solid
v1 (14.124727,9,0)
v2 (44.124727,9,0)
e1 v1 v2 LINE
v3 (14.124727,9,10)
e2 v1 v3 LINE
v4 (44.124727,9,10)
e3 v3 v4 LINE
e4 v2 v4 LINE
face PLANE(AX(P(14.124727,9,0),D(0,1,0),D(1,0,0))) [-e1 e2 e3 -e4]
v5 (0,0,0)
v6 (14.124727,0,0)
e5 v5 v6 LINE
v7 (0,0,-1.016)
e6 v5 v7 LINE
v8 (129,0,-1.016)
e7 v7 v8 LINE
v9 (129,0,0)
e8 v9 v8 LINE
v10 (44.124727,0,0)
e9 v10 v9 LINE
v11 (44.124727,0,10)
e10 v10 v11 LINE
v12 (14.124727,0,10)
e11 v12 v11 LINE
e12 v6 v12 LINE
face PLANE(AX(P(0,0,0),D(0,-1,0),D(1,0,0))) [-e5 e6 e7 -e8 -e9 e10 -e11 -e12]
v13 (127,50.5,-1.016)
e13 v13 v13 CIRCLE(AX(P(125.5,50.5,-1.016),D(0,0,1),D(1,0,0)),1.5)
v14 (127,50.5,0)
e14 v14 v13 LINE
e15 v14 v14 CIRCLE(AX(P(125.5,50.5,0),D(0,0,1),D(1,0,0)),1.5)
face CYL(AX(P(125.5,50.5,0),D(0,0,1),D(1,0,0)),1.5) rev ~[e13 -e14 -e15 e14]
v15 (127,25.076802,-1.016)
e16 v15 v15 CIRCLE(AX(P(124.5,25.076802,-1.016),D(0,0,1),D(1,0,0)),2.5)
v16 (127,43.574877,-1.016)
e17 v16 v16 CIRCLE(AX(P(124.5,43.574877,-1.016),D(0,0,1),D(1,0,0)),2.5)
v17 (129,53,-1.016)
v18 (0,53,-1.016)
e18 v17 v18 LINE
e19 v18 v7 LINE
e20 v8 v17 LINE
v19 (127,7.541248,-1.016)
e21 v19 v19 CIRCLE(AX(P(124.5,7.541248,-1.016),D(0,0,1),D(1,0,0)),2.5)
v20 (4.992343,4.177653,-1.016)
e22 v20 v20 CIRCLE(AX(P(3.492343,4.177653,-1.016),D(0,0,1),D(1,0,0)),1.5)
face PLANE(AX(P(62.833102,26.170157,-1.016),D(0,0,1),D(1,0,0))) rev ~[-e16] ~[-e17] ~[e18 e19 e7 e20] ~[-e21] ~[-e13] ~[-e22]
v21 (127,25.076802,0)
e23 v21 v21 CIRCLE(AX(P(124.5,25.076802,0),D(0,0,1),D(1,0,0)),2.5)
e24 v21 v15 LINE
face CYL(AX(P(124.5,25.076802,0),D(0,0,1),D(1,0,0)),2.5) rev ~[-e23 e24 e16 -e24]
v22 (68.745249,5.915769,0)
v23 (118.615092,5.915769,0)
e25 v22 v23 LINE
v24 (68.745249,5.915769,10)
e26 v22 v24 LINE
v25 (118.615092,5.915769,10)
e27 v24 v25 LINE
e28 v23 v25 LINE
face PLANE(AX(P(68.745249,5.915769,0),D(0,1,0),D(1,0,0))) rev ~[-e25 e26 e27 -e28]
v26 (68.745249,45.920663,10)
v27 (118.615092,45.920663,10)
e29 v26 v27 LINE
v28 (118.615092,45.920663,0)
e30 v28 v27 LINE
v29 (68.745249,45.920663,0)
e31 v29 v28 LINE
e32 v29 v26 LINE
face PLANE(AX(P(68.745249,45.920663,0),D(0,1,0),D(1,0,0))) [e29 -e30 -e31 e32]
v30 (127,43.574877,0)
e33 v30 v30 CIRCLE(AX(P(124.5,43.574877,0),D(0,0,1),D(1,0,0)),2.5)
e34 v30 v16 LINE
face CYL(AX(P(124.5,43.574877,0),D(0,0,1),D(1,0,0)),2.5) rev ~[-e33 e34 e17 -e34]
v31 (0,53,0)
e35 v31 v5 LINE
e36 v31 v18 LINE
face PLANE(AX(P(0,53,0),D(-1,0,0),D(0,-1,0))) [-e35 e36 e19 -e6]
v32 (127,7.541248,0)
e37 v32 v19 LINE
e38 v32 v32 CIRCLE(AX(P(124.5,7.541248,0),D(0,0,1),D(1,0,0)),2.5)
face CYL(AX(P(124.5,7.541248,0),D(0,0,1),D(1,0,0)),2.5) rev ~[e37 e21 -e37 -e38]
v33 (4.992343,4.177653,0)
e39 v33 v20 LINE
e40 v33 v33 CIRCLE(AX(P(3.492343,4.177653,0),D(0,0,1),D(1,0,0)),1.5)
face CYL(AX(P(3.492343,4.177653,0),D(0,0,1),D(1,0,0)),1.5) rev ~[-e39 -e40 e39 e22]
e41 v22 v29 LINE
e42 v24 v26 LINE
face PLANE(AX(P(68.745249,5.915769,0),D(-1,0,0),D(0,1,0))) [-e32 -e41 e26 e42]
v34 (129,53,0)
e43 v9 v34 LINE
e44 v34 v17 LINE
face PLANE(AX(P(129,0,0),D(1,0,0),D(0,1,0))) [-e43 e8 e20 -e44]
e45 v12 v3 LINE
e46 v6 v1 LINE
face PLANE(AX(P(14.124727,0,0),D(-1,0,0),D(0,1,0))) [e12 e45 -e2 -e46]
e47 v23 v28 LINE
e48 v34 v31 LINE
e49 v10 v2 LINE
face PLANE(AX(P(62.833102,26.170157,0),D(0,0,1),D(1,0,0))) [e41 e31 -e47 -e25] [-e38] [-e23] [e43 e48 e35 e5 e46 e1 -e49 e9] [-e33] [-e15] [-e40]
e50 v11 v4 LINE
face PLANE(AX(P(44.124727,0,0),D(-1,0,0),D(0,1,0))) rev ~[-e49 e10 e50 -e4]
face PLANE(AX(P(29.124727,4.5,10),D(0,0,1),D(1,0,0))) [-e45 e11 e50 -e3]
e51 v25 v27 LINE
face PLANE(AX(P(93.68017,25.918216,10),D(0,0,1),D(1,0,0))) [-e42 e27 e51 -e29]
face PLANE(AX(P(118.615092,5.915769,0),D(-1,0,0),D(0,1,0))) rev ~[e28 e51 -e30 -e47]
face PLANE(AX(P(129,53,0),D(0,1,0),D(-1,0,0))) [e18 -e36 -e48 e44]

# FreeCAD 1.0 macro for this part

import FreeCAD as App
import Part
import Sketcher
from FreeCAD import Vector

doc = App.newDocument("Part")
params = doc.addObject("Spreadsheet::Sheet", "Params")
for row, (alias, value) in enumerate([
    ("sketch1_diameter", "3 mm"),
    ("sketch1_diameter2", "5 mm"),
    ("sketch1_width", "129 mm"),
    ("sketch1_height", "53 mm"),
    ("pad1_length", "1.016 mm"),
    ("sketch2_width", "30 mm"),
    ("sketch2_height", "9 mm"),
    ("pad2_length", "10 mm"),
], start=1):
    params.set(f"A{row}", alias)
    params.set(f"B{row}", "=" + value)
    params.setAlias(f"B{row}", alias)

body = doc.addObject("PartDesign::Body", "Body")

# Sketch on XY plane
sketch1 = body.newObject("Sketcher::SketchObject", "Sketch")
sketch1.AttachmentSupport = (doc.getObject("XY_Plane"), [""])
sketch1.MapMode = "FlatFace"
sketch1.addGeometry([
    Part.LineSegment(Vector(0, 53, 0), Vector(0, 0, 0)),  # 0
    Part.LineSegment(Vector(0, 0, 0), Vector(129, 0, 0)),  # 1
    Part.LineSegment(Vector(129, 0, 0), Vector(129, 53, 0)),  # 2
    Part.LineSegment(Vector(129, 53, 0), Vector(0, 53, 0)),  # 3
    Part.Circle(Vector(3.5, 4.2, 0), Vector(0, 0, 1), 1.5),  # 4
    Part.Circle(Vector(124.5, 7.5, 0), Vector(0, 0, 1), 2.5),  # 5
    Part.Circle(Vector(124.5, 25.1, 0), Vector(0, 0, 1), 2.5),  # 6
    Part.Circle(Vector(124.5, 43.6, 0), Vector(0, 0, 1), 2.5),  # 7
    Part.Circle(Vector(125.5, 50.5, 0), Vector(0, 0, 1), 1.5),  # 8
], False)
sketch1.addConstraint([
    Sketcher.Constraint("Coincident", 0, 2, 1, 1),
    Sketcher.Constraint("Coincident", 1, 2, 2, 1),
    Sketcher.Constraint("Coincident", 2, 2, 3, 1),
    Sketcher.Constraint("Coincident", 3, 2, 0, 1),
    Sketcher.Constraint("Vertical", 0),
    Sketcher.Constraint("Horizontal", 1),
    Sketcher.Constraint("Vertical", 2),
    Sketcher.Constraint("Horizontal", 3),
    Sketcher.Constraint("Coincident", 0, 2, -1, 1),
    Sketcher.Constraint("Equal", 5, 6),
    Sketcher.Constraint("Equal", 6, 7),
    Sketcher.Constraint("Equal", 4, 8),
    Sketcher.Constraint("Vertical", 5, 3, 6, 3),
    Sketcher.Constraint("Vertical", 6, 3, 7, 3),
    Sketcher.Constraint("Diameter", 4, 3.0),
    Sketcher.Constraint("Diameter", 5, 5.0),
    Sketcher.Constraint("DistanceX", 1, 1, 1, 2, 129.0),
    Sketcher.Constraint("DistanceY", 0, 2, 0, 1, 53.0),
    Sketcher.Constraint("DistanceX", 7, 3, 8, 3, 1.0),
    Sketcher.Constraint("DistanceX", -1, 1, 5, 3, 124.5),
    Sketcher.Constraint("DistanceY", -1, 1, 8, 3, 50.5),
    Sketcher.Constraint("DistanceY", -1, 1, 5, 3, 7.541248),
    Sketcher.Constraint("DistanceY", 4, 3, 6, 3, 20.899149),
    Sketcher.Constraint("DistanceY", 5, 3, 7, 3, 36.033629),
    Sketcher.Constraint("DistanceX", -1, 1, 4, 3, 3.492343),
    Sketcher.Constraint("DistanceY", -1, 1, 4, 3, 4.177653),
])
sketch1.setExpression("Constraints[14]", "Params.sketch1_diameter")
sketch1.setExpression("Constraints[15]", "Params.sketch1_diameter2")
sketch1.setExpression("Constraints[16]", "Params.sketch1_width")
sketch1.setExpression("Constraints[17]", "Params.sketch1_height")
pad1 = body.newObject("PartDesign::Pad", "Pad")
pad1.Profile = sketch1
pad1.setExpression("Length", "Params.pad1_length")
pad1.Reversed = True

# Sketch on XY plane
sketch2 = body.newObject("Sketcher::SketchObject", "Sketch001")
sketch2.AttachmentSupport = (doc.getObject("XY_Plane"), [""])
sketch2.MapMode = "FlatFace"
sketch2.addGeometry([
    Part.LineSegment(Vector(14, 9, 0), Vector(14, 0, 0)),  # 0
    Part.LineSegment(Vector(14, 0, 0), Vector(44, 0, 0)),  # 1
    Part.LineSegment(Vector(44, 0, 0), Vector(44, 9, 0)),  # 2
    Part.LineSegment(Vector(44, 9, 0), Vector(14, 9, 0)),  # 3
    Part.LineSegment(Vector(69, 46, 0), Vector(69, 6, 0)),  # 4
    Part.LineSegment(Vector(69, 6, 0), Vector(119, 6, 0)),  # 5
    Part.LineSegment(Vector(119, 6, 0), Vector(119, 46, 0)),  # 6
    Part.LineSegment(Vector(119, 46, 0), Vector(69, 46, 0)),  # 7
], False)
sketch2.addConstraint([
    Sketcher.Constraint("Coincident", 0, 2, 1, 1),
    Sketcher.Constraint("Coincident", 1, 2, 2, 1),
    Sketcher.Constraint("Coincident", 2, 2, 3, 1),
    Sketcher.Constraint("Coincident", 3, 2, 0, 1),
    Sketcher.Constraint("Coincident", 4, 2, 5, 1),
    Sketcher.Constraint("Coincident", 5, 2, 6, 1),
    Sketcher.Constraint("Coincident", 6, 2, 7, 1),
    Sketcher.Constraint("Coincident", 7, 2, 4, 1),
    Sketcher.Constraint("Vertical", 0),
    Sketcher.Constraint("Horizontal", 1),
    Sketcher.Constraint("Vertical", 2),
    Sketcher.Constraint("Horizontal", 3),
    Sketcher.Constraint("Vertical", 4),
    Sketcher.Constraint("Horizontal", 5),
    Sketcher.Constraint("Vertical", 6),
    Sketcher.Constraint("Horizontal", 7),
    Sketcher.Constraint("PointOnObject", 0, 2, -1),
    Sketcher.Constraint("DistanceX", 1, 1, 1, 2, 30.0),
    Sketcher.Constraint("DistanceY", 0, 2, 0, 1, 9.0),
    Sketcher.Constraint("DistanceX", 5, 1, 5, 2, 49.869843),
    Sketcher.Constraint("DistanceY", 4, 2, 4, 1, 40.004894),
    Sketcher.Constraint("DistanceX", -1, 1, 4, 2, 68.745249),
    Sketcher.Constraint("DistanceY", -1, 1, 4, 2, 5.915769),
    Sketcher.Constraint("DistanceX", 2, 2, 4, 2, 24.620522),
])
sketch2.setExpression("Constraints[17]", "Params.sketch2_width")
sketch2.setExpression("Constraints[18]", "Params.sketch2_height")
pad2 = body.newObject("PartDesign::Pad", "Pad001")
pad2.Profile = sketch2
pad2.setExpression("Length", "Params.pad2_length")

doc.recompute()
